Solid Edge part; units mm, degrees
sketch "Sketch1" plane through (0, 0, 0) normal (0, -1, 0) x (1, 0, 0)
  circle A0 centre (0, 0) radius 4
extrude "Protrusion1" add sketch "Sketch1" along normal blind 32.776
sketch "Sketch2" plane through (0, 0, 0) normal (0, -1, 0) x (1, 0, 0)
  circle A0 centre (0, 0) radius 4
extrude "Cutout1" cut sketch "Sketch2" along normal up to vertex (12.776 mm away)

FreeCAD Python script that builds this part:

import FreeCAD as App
import Part
import Sketcher
Q = App.Units.Quantity

doc = App.newDocument("Part")
params = doc.addObject("Spreadsheet::Sheet", "Params")
for row, (alias, value) in enumerate([
    ("sketch1_diameter", "8 mm"),
    ("pad1_length", "32.776 mm"),
    ("sketch2_diameter", "8 mm"),
    ("pocket1_length", "12.776 mm"),
], start=1):
    params.set(f"A{row}", alias)
    params.set(f"B{row}", "=" + value)
    params.setAlias(f"B{row}", alias)

body = doc.addObject("PartDesign::Body", "Body")

# Sketch on XZ plane
sketch1 = body.newObject("Sketcher::SketchObject", "Sketch")
sketch1.AttachmentSupport = (doc.getObject("XZ_Plane"), [""])
sketch1.MapMode = "FlatFace"
sketch1.addGeometry(Part.Circle(App.Vector(0, 0, 0), App.Vector(0, 0, 1), 4), False)
sketch1.addConstraint(Sketcher.Constraint("Coincident", 0, 3, -1, 1))
sketch1.addConstraint(Sketcher.Constraint("Diameter", 0, Q("8 mm")))
sketch1.setExpression("Constraints[1]", "Params.sketch1_diameter")
pad1 = body.newObject("PartDesign::Pad", "Pad")
pad1.Profile = sketch1
pad1.setExpression("Length", "Params.pad1_length")

# Sketch on XZ plane
sketch2 = body.newObject("Sketcher::SketchObject", "Sketch001")
sketch2.AttachmentSupport = (doc.getObject("XZ_Plane"), [""])
sketch2.MapMode = "FlatFace"
sketch2.addGeometry(Part.Circle(App.Vector(0, 0, 0), App.Vector(0, 0, 1), 4), False)
sketch2.addConstraint(Sketcher.Constraint("Coincident", 0, 3, -1, 1))
sketch2.addConstraint(Sketcher.Constraint("Diameter", 0, Q("8 mm")))
sketch2.setExpression("Constraints[1]", "Params.sketch2_diameter")
pocket1 = body.newObject("PartDesign::Pocket", "Pocket")
pocket1.Profile = sketch2
pocket1.setExpression("Length", "Params.pocket1_length")
pocket1.Reversed = True

doc.recompute()
